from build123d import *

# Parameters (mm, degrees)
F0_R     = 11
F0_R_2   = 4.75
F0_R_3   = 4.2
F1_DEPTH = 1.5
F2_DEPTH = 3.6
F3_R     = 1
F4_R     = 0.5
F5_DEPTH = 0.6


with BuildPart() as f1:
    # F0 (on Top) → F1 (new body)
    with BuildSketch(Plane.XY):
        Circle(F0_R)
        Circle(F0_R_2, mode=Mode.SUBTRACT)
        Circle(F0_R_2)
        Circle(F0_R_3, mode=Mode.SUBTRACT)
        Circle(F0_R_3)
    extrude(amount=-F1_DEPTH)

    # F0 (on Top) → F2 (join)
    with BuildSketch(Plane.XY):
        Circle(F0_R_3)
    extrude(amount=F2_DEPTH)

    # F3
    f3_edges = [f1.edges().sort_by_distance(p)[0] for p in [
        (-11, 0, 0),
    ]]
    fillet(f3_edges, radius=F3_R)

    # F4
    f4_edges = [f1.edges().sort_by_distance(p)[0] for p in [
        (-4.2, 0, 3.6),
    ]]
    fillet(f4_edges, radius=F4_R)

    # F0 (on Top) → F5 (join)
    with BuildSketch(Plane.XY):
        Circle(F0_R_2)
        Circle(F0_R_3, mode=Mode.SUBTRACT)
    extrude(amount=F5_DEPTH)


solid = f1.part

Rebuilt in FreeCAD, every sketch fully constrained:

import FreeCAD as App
import Part
import Sketcher
from FreeCAD import Vector
Q = App.Units.Quantity


def edges_at(feature, points):
    """Names of the edges that pass closest to the given points."""
    edges = feature.Shape.Edges
    near = lambda p: min(range(len(edges)), key=lambda i: edges[i].distToShape(Part.Vertex(*p))[0])
    return sorted({f"Edge{near(p) + 1}" for p in points})

doc = App.newDocument("Part")
body = doc.addObject("PartDesign::Body", "Body")

# Sketch on XY plane
sketch1 = body.newObject("Sketcher::SketchObject", "Sketch")
sketch1.AttachmentSupport = (doc.getObject("XY_Plane"), [""])
sketch1.MapMode = "FlatFace"
sketch1.addGeometry(Part.Circle(Vector(0, 0, 0), Vector(0, 0, 1), 11), False)
sketch1.addConstraint([
    Sketcher.Constraint("Coincident", 0, 3, -1, 1),
    Sketcher.Constraint("Diameter", 0, Q("22 mm")),
])
pad1 = body.newObject("PartDesign::Pad", "Pad")
pad1.Profile = sketch1
pad1.Length = 1.5
pad1.Reversed = True

# Sketch on XY plane
sketch2 = body.newObject("Sketcher::SketchObject", "Sketch001")
sketch2.AttachmentSupport = (doc.getObject("XY_Plane"), [""])
sketch2.MapMode = "FlatFace"
sketch2.addGeometry(Part.Circle(Vector(0, 0, 0), Vector(0, 0, 1), 4.2), False)
sketch2.addConstraint([
    Sketcher.Constraint("Coincident", 0, 3, -1, 1),
    Sketcher.Constraint("Diameter", 0, Q("8.4 mm")),
])
pad2 = body.newObject("PartDesign::Pad", "Pad001")
pad2.Profile = sketch2
pad2.Length = 3.6
doc.recompute()

fillet = body.newObject("PartDesign::Fillet", "Fillet")
fillet.Base = (pad2, edges_at(pad2, [(-11, 0, 0)]))
fillet.Radius = 1
doc.recompute()

fillet2 = body.newObject("PartDesign::Fillet", "Fillet001")
fillet2.Base = (fillet, edges_at(fillet, [(-4.2, 0, 3.6)]))
fillet2.Radius = 0.5

# Sketch on XY plane
sketch3 = body.newObject("Sketcher::SketchObject", "Sketch002")
sketch3.AttachmentSupport = (doc.getObject("XY_Plane"), [""])
sketch3.MapMode = "FlatFace"
sketch3.addGeometry([
    Part.Circle(Vector(0, 0, 0), Vector(0, 0, 1), 4.8),
    Part.Circle(Vector(0, 0, 0), Vector(0, 0, 1), 4.2),
], False)
sketch3.addConstraint([
    Sketcher.Constraint("Coincident", 0, 3, -1, 1),
    Sketcher.Constraint("Coincident", 1, 3, -1, 1),
    Sketcher.Constraint("Diameter", 0, Q("9.5 mm")),
    Sketcher.Constraint("Diameter", 1, Q("8.4 mm")),
])
pad3 = body.newObject("PartDesign::Pad", "Pad002")
pad3.Profile = sketch3
pad3.Length = 0.6

doc.recompute()
